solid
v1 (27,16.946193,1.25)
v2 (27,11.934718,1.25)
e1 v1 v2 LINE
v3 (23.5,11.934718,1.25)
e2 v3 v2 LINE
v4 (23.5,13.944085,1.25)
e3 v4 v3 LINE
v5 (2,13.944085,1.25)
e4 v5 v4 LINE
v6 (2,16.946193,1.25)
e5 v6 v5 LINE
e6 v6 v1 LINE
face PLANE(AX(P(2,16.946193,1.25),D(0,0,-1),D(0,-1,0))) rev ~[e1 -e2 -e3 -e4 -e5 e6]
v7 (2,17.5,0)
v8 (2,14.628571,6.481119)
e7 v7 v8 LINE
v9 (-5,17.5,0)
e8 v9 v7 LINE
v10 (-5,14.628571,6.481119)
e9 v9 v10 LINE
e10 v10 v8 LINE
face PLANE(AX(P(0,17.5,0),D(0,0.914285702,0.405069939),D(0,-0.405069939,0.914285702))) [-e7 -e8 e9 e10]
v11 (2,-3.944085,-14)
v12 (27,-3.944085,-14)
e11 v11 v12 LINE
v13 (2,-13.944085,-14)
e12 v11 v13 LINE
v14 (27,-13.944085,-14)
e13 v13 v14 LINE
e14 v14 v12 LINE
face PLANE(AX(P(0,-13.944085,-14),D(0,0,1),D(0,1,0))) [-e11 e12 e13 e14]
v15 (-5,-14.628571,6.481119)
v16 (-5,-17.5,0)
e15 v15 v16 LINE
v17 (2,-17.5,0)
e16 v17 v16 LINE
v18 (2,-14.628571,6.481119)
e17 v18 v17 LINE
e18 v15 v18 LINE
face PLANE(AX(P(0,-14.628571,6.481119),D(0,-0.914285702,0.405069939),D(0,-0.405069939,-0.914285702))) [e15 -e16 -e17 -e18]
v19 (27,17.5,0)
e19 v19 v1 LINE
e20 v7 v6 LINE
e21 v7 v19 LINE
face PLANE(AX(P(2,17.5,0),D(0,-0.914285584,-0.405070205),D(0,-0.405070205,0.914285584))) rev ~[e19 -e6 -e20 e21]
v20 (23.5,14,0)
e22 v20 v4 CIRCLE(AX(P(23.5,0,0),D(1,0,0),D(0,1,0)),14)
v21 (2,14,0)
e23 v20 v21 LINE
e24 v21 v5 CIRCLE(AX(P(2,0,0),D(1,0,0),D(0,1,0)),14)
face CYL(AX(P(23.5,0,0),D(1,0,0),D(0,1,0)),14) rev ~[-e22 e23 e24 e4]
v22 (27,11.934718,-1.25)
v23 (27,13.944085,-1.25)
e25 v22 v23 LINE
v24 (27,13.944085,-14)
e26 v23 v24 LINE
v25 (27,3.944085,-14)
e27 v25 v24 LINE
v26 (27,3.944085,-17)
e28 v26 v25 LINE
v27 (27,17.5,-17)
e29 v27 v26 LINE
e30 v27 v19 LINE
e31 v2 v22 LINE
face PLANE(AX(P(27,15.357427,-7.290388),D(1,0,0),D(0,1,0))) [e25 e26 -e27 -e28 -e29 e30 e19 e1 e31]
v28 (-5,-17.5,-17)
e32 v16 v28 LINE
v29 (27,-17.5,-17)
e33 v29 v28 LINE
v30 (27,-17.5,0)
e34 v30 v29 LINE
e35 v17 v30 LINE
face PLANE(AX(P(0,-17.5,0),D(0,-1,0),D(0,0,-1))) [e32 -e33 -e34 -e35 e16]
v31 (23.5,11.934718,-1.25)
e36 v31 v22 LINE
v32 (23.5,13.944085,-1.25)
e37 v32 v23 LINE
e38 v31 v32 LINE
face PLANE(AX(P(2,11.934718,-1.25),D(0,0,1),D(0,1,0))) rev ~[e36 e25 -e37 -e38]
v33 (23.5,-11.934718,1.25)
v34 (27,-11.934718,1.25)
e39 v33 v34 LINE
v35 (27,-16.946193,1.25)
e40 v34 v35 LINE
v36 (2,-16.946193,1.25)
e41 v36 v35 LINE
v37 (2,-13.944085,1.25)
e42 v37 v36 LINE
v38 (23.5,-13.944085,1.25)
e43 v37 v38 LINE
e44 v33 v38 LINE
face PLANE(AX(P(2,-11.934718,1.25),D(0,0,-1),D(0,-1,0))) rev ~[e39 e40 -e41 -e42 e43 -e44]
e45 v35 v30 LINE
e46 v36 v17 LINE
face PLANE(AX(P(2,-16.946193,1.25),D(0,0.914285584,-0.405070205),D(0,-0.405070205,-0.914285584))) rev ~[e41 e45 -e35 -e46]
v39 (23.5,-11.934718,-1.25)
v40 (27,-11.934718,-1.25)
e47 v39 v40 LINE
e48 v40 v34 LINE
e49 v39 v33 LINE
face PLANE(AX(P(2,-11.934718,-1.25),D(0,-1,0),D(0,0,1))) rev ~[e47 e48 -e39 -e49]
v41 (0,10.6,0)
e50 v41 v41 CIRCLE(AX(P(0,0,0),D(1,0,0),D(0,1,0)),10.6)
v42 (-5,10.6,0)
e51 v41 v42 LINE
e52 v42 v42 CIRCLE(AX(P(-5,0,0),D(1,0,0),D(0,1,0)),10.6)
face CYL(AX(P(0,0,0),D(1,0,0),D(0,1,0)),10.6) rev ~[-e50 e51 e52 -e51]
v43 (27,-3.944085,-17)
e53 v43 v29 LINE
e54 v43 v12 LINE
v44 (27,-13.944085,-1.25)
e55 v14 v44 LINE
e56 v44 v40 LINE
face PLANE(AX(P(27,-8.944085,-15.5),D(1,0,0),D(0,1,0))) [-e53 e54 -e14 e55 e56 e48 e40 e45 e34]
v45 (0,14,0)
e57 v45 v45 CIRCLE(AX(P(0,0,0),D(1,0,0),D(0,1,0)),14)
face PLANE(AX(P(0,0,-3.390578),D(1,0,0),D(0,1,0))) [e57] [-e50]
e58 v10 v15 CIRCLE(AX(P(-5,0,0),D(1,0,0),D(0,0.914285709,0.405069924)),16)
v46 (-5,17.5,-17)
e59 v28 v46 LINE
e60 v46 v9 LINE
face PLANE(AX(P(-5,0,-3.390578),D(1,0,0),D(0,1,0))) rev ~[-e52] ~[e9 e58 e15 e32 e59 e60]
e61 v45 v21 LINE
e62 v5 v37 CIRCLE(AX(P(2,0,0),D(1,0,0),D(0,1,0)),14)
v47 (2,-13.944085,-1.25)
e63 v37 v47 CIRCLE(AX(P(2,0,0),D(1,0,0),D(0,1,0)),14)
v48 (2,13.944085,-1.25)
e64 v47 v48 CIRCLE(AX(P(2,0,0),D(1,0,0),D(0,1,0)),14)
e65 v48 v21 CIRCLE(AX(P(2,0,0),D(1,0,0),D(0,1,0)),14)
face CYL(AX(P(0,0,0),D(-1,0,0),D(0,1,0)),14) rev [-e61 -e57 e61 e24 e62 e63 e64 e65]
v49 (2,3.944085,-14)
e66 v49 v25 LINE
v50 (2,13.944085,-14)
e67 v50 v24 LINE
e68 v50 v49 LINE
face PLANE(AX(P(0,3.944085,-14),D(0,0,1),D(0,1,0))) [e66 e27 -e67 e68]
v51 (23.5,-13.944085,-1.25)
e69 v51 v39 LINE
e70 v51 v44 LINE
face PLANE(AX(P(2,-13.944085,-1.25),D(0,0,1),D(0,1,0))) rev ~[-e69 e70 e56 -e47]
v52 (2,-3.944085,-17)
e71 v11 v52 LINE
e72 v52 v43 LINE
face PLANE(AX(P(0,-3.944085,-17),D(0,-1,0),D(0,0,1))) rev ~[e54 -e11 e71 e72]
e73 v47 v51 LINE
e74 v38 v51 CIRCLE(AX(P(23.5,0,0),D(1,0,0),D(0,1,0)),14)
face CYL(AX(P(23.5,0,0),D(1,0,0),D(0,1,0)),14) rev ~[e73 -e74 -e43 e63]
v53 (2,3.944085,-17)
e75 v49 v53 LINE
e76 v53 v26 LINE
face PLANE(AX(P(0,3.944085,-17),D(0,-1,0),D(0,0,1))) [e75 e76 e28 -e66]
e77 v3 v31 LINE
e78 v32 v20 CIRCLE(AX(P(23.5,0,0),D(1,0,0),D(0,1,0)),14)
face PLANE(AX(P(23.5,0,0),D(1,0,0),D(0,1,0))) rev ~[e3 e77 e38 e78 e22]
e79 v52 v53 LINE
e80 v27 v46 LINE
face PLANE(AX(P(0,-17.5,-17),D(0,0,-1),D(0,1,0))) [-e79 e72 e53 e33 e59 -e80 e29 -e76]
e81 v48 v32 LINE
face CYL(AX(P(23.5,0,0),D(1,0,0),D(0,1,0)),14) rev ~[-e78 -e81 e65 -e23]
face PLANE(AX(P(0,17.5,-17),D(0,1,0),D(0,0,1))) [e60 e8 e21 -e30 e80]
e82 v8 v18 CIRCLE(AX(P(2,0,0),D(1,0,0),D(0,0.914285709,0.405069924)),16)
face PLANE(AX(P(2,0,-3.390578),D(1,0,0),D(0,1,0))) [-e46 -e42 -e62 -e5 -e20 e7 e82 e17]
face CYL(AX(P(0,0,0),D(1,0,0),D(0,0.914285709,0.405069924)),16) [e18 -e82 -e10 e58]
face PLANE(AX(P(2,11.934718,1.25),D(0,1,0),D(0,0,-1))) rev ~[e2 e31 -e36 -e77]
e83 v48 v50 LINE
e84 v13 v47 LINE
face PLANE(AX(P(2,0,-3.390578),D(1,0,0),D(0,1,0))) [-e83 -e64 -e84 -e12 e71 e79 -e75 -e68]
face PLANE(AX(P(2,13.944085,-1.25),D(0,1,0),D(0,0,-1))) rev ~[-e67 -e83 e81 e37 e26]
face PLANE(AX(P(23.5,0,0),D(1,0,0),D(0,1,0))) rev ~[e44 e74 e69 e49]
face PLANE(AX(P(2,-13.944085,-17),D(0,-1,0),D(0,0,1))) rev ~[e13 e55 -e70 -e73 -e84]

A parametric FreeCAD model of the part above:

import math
import FreeCAD as App
import Part
import Sketcher
Q = App.Units.Quantity

doc = App.newDocument("Part")
body = doc.addObject("PartDesign::Body", "Body")

# Sketch on YZ plane
sketch1 = body.newObject("Sketcher::SketchObject", "Sketch")
sketch1.AttachmentSupport = (doc.getObject("YZ_Plane"), [""])
sketch1.MapMode = "FlatFace"
sketch1.addGeometry([
    Part.LineSegment(App.Vector(-17.5, 0, 0), App.Vector(-17.5, -17, 0)),  # 0
    Part.LineSegment(App.Vector(-17.5, -17, 0), App.Vector(17.5, -17, 0)),  # 1
    Part.LineSegment(App.Vector(17.5, -17, 0), App.Vector(17.5, 0, 0)),  # 2
    Part.LineSegment(App.Vector(17.5, 0, 0), App.Vector(14.628571, 6.481119, 0)),  # 3
    Part.ArcOfCircle(Part.Circle(App.Vector(0, 0, 0), App.Vector(0, 0, 1), 16), math.radians(23.895509), math.radians(156.104491)),  # 4
    Part.LineSegment(App.Vector(-14.628571, 6.481119, 0), App.Vector(-17.5, 0, 0)),  # 5
    Part.Circle(App.Vector(0, 0, 0), App.Vector(0, 0, 1), 14),  # 6
], False)
sketch1.addConstraint([
    Sketcher.Constraint("Coincident", 0, 2, 1, 1),
    Sketcher.Constraint("Coincident", 1, 2, 2, 1),
    Sketcher.Constraint("Coincident", 2, 2, 3, 1),
    Sketcher.Constraint("Tangent", 3, 2, 4, 1),
    Sketcher.Constraint("Tangent", 4, 2, 5, 1),
    Sketcher.Constraint("Coincident", 5, 2, 0, 1),
    Sketcher.Constraint("Vertical", 0),
    Sketcher.Constraint("Horizontal", 1),
    Sketcher.Constraint("Vertical", 2),
    Sketcher.Constraint("Coincident", 4, 3, -1, 1),
    Sketcher.Constraint("Coincident", 6, 3, -1, 1),
    Sketcher.Constraint("Symmetric", 2, 2, 5, 2, -1, 1),
    Sketcher.Constraint("PointOnObject", 2, 2, -1),
    Sketcher.Constraint("Diameter", 6, Q("28 mm")),
    Sketcher.Constraint("Radius", 4, Q("16 mm")),
    Sketcher.Constraint("DistanceX", 1, 1, 1, 2, Q("35 mm")),
    Sketcher.Constraint("DistanceY", 0, 2, 0, 1, Q("17 mm")),
])
pad1 = body.newObject("PartDesign::Pad", "Pad")
pad1.Profile = sketch1
pad1.Length = 2

# Sketch on YZ plane
sketch2 = body.newObject("Sketcher::SketchObject", "Sketch001")
sketch2.AttachmentSupport = (doc.getObject("YZ_Plane"), [""])
sketch2.MapMode = "FlatFace"
sketch2.AttachmentOffset = App.Placement(App.Vector(0, 0, 2), App.Rotation())
sketch2.addGeometry([
    Part.LineSegment(App.Vector(-11.934718, -1.25, 0), App.Vector(-11.934718, 1.25, 0)),  # 0
    Part.LineSegment(App.Vector(-11.934718, 1.25, 0), App.Vector(-16.946193, 1.25, 0)),  # 1
    Part.LineSegment(App.Vector(-16.946193, 1.25, 0), App.Vector(-17.5, 0, 0)),  # 2
    Part.LineSegment(App.Vector(-17.5, 0, 0), App.Vector(-17.5, -17, 0)),  # 3
    Part.LineSegment(App.Vector(-17.5, -17, 0), App.Vector(-13.944085, -17, 0)),  # 4
    Part.LineSegment(App.Vector(-13.944085, -17, 0), App.Vector(-13.944085, -1.25, 0)),  # 5
    Part.LineSegment(App.Vector(-13.944085, -1.25, 0), App.Vector(-11.934718, -1.25, 0)),  # 6
    Part.LineSegment(App.Vector(11.934718, 1.25, 0), App.Vector(11.934718, -1.25, 0)),  # 7
    Part.LineSegment(App.Vector(11.934718, -1.25, 0), App.Vector(13.944085, -1.25, 0)),  # 8
    Part.LineSegment(App.Vector(13.944085, -1.25, 0), App.Vector(13.944085, -17, 0)),  # 9
    Part.LineSegment(App.Vector(13.944085, -17, 0), App.Vector(17.5, -17, 0)),  # 10
    Part.LineSegment(App.Vector(17.5, -17, 0), App.Vector(17.5, 0, 0)),  # 11
    Part.LineSegment(App.Vector(17.5, 0, 0), App.Vector(16.946193, 1.25, 0)),  # 12
    Part.LineSegment(App.Vector(16.946193, 1.25, 0), App.Vector(11.934718, 1.25, 0)),  # 13
], False)
sketch2.addConstraint([
    Sketcher.Constraint("Coincident", 0, 2, 1, 1),
    Sketcher.Constraint("Coincident", 1, 2, 2, 1),
    Sketcher.Constraint("Coincident", 2, 2, 3, 1),
    Sketcher.Constraint("Coincident", 3, 2, 4, 1),
    Sketcher.Constraint("Coincident", 4, 2, 5, 1),
    Sketcher.Constraint("Coincident", 5, 2, 6, 1),
    Sketcher.Constraint("Coincident", 6, 2, 0, 1),
    Sketcher.Constraint("Coincident", 7, 2, 8, 1),
    Sketcher.Constraint("Coincident", 8, 2, 9, 1),
    Sketcher.Constraint("Coincident", 9, 2, 10, 1),
    Sketcher.Constraint("Coincident", 10, 2, 11, 1),
    Sketcher.Constraint("Coincident", 11, 2, 12, 1),
    Sketcher.Constraint("Coincident", 12, 2, 13, 1),
    Sketcher.Constraint("Coincident", 13, 2, 7, 1),
    Sketcher.Constraint("Vertical", 0),
    Sketcher.Constraint("Horizontal", 1),
    Sketcher.Constraint("Vertical", 3),
    Sketcher.Constraint("Horizontal", 4),
    Sketcher.Constraint("Vertical", 5),
    Sketcher.Constraint("Horizontal", 6),
    Sketcher.Constraint("Vertical", 7),
    Sketcher.Constraint("Horizontal", 8),
    Sketcher.Constraint("Vertical", 9),
    Sketcher.Constraint("Horizontal", 10),
    Sketcher.Constraint("Vertical", 11),
    Sketcher.Constraint("Horizontal", 13),
    Sketcher.Constraint("Symmetric", 0, 2, 7, 2, -1, 1),
    Sketcher.Constraint("Symmetric", 2, 2, 11, 2, -1, 1),
    Sketcher.Constraint("Symmetric", 5, 2, 8, 2, -2),
    Sketcher.Constraint("Symmetric", 1, 2, 12, 2, -2),
    Sketcher.Constraint("PointOnObject", 2, 2, -1),
    Sketcher.Constraint("Horizontal", 4, 2, 9, 2),
    Sketcher.Constraint("DistanceY", 3, 2, 3, 1, Q("17 mm")),
    Sketcher.Constraint("DistanceY", 0, 1, 0, 2, Q("2.5 mm")),
    Sketcher.Constraint("DistanceX", 2, 2, -1, 1, Q("17.5 mm")),
    Sketcher.Constraint("DistanceX", 1, 2, 1, 1, Q("5.011475 mm")),
    Sketcher.Constraint("DistanceX", 4, 1, 4, 2, Q("3.555915 mm")),
    Sketcher.Constraint("DistanceX", 6, 1, 6, 2, Q("2.009367 mm")),
])
pad2 = body.newObject("PartDesign::Pad", "Pad001")
pad2.Profile = sketch2
pad2.Length = 25

# Sketch on YZ plane
sketch3 = body.newObject("Sketcher::SketchObject", "Sketch002")
sketch3.AttachmentSupport = (doc.getObject("YZ_Plane"), [""])
sketch3.MapMode = "FlatFace"
sketch3.addGeometry([
    Part.LineSegment(App.Vector(17.5, -17, 0), App.Vector(17.5, 0, 0)),  # 0
    Part.LineSegment(App.Vector(17.5, 0, 0), App.Vector(14.628571, 6.481119, 0)),  # 1
    Part.ArcOfCircle(Part.Circle(App.Vector(0, 0, 0), App.Vector(0, 0, 1), 16), math.radians(23.895509), math.radians(156.104491)),  # 2
    Part.LineSegment(App.Vector(-14.628571, 6.481119, 0), App.Vector(-17.5, 0, 0)),  # 3
    Part.LineSegment(App.Vector(-17.5, 0, 0), App.Vector(-17.5, -17, 0)),  # 4
    Part.LineSegment(App.Vector(-17.5, -17, 0), App.Vector(17.5, -17, 0)),  # 5
    Part.Circle(App.Vector(0, 0, 0), App.Vector(0, 0, 1), 10.6),  # 6
], False)
sketch3.addConstraint([
    Sketcher.Constraint("Coincident", 0, 2, 1, 1),
    Sketcher.Constraint("Tangent", 1, 2, 2, 1),
    Sketcher.Constraint("Tangent", 2, 2, 3, 1),
    Sketcher.Constraint("Coincident", 3, 2, 4, 1),
    Sketcher.Constraint("Coincident", 4, 2, 5, 1),
    Sketcher.Constraint("Coincident", 5, 2, 0, 1),
    Sketcher.Constraint("Vertical", 0),
    Sketcher.Constraint("Vertical", 4),
    Sketcher.Constraint("Horizontal", 5),
    Sketcher.Constraint("Coincident", 2, 3, -1, 1),
    Sketcher.Constraint("Coincident", 6, 3, -1, 1),
    Sketcher.Constraint("Symmetric", 0, 2, 3, 2, -1, 1),
    Sketcher.Constraint("PointOnObject", 0, 2, -1),
    Sketcher.Constraint("Radius", 2, Q("16 mm")),
    Sketcher.Constraint("Diameter", 6, Q("21.2 mm")),
    Sketcher.Constraint("DistanceX", 5, 1, 5, 2, Q("35 mm")),
    Sketcher.Constraint("DistanceY", 0, 1, 0, 2, Q("17 mm")),
])
pad3 = body.newObject("PartDesign::Pad", "Pad002")
pad3.Profile = sketch3
pad3.Length = 5
pad3.Reversed = True

# Sketch on YZ plane
sketch4 = body.newObject("Sketcher::SketchObject", "Sketch003")
sketch4.AttachmentSupport = (doc.getObject("YZ_Plane"), [""])
sketch4.MapMode = "FlatFace"
sketch4.AttachmentOffset = App.Placement(App.Vector(0, 0, 23.5), App.Rotation())
sketch4.addGeometry(Part.Circle(App.Vector(0, 0, 0), App.Vector(0, 0, 1), 14), False)
sketch4.addConstraint([
    Sketcher.Constraint("Coincident", 0, 3, -1, 1),
    Sketcher.Constraint("Diameter", 0, Q("28 mm")),
])
pocket1 = body.newObject("PartDesign::Pocket", "Pocket")
pocket1.Profile = sketch4
pocket1.Length = 23.5

# Sketch on YZ plane
sketch5 = body.newObject("Sketcher::SketchObject", "Sketch004")
sketch5.AttachmentSupport = (doc.getObject("YZ_Plane"), [""])
sketch5.MapMode = "FlatFace"
sketch5.addGeometry([
    Part.LineSegment(App.Vector(-13.944085, -14, 0), App.Vector(-13.944085, -17, 0)),  # 0
    Part.LineSegment(App.Vector(-13.944085, -17, 0), App.Vector(-3.944085, -17, 0)),  # 1
    Part.LineSegment(App.Vector(-3.944085, -17, 0), App.Vector(-3.944085, -14, 0)),  # 2
    Part.LineSegment(App.Vector(-3.944085, -14, 0), App.Vector(-13.944085, -14, 0)),  # 3
    Part.LineSegment(App.Vector(3.944085, -14, 0), App.Vector(3.944085, -17, 0)),  # 4
    Part.LineSegment(App.Vector(3.944085, -17, 0), App.Vector(13.944085, -17, 0)),  # 5
    Part.LineSegment(App.Vector(13.944085, -17, 0), App.Vector(13.944085, -14, 0)),  # 6
    Part.LineSegment(App.Vector(13.944085, -14, 0), App.Vector(3.944085, -14, 0)),  # 7
], False)
sketch5.addConstraint([
    Sketcher.Constraint("Coincident", 0, 2, 1, 1),
    Sketcher.Constraint("Coincident", 1, 2, 2, 1),
    Sketcher.Constraint("Coincident", 2, 2, 3, 1),
    Sketcher.Constraint("Coincident", 3, 2, 0, 1),
    Sketcher.Constraint("Coincident", 4, 2, 5, 1),
    Sketcher.Constraint("Coincident", 5, 2, 6, 1),
    Sketcher.Constraint("Coincident", 6, 2, 7, 1),
    Sketcher.Constraint("Coincident", 7, 2, 4, 1),
    Sketcher.Constraint("Vertical", 0),
    Sketcher.Constraint("Horizontal", 1),
    Sketcher.Constraint("Vertical", 2),
    Sketcher.Constraint("Horizontal", 3),
    Sketcher.Constraint("Vertical", 4),
    Sketcher.Constraint("Horizontal", 5),
    Sketcher.Constraint("Vertical", 6),
    Sketcher.Constraint("Horizontal", 7),
    Sketcher.Constraint("Symmetric", 1, 2, 4, 2, -2),
    Sketcher.Constraint("Symmetric", 3, 2, 6, 2, -2),
    Sketcher.Constraint("DistanceX", 1, 1, 1, 2, Q("10 mm")),
    Sketcher.Constraint("DistanceY", 0, 2, 0, 1, Q("3 mm")),
    Sketcher.Constraint("DistanceY", 0, 2, -1, 1, Q("17 mm")),
    Sketcher.Constraint("DistanceX", 1, 2, 4, 2, Q("7.88817 mm")),
])
pad4 = body.newObject("PartDesign::Pad", "Pad003")
pad4.Profile = sketch5
pad4.Length = 27

# Sketch on YZ plane
sketch6 = body.newObject("Sketcher::SketchObject", "Sketch005")
sketch6.AttachmentSupport = (doc.getObject("YZ_Plane"), [""])
sketch6.MapMode = "FlatFace"
sketch6.addGeometry([
    Part.LineSegment(App.Vector(-13.944085, -14, 0), App.Vector(-13.944085, -17, 0)),  # 0
    Part.LineSegment(App.Vector(-13.944085, -17, 0), App.Vector(-3.944085, -17, 0)),  # 1
    Part.LineSegment(App.Vector(-3.944085, -17, 0), App.Vector(-3.944085, -14, 0)),  # 2
    Part.LineSegment(App.Vector(-3.944085, -14, 0), App.Vector(-13.944085, -14, 0)),  # 3
    Part.LineSegment(App.Vector(3.944085, -14, 0), App.Vector(3.944085, -17, 0)),  # 4
    Part.LineSegment(App.Vector(3.944085, -17, 0), App.Vector(13.944085, -17, 0)),  # 5
    Part.LineSegment(App.Vector(13.944085, -17, 0), App.Vector(13.944085, -14, 0)),  # 6
    Part.LineSegment(App.Vector(13.944085, -14, 0), App.Vector(3.944085, -14, 0)),  # 7
], False)
sketch6.addConstraint([
    Sketcher.Constraint("Coincident", 0, 2, 1, 1),
    Sketcher.Constraint("Coincident", 1, 2, 2, 1),
    Sketcher.Constraint("Coincident", 2, 2, 3, 1),
    Sketcher.Constraint("Coincident", 3, 2, 0, 1),
    Sketcher.Constraint("Coincident", 4, 2, 5, 1),
    Sketcher.Constraint("Coincident", 5, 2, 6, 1),
    Sketcher.Constraint("Coincident", 6, 2, 7, 1),
    Sketcher.Constraint("Coincident", 7, 2, 4, 1),
    Sketcher.Constraint("Vertical", 0),
    Sketcher.Constraint("Horizontal", 1),
    Sketcher.Constraint("Vertical", 2),
    Sketcher.Constraint("Horizontal", 3),
    Sketcher.Constraint("Vertical", 4),
    Sketcher.Constraint("Horizontal", 5),
    Sketcher.Constraint("Vertical", 6),
    Sketcher.Constraint("Horizontal", 7),
    Sketcher.Constraint("Symmetric", 1, 2, 4, 2, -2),
    Sketcher.Constraint("Symmetric", 3, 2, 6, 2, -2),
    Sketcher.Constraint("DistanceX", 1, 1, 1, 2, Q("10 mm")),
    Sketcher.Constraint("DistanceY", 0, 2, 0, 1, Q("3 mm")),
    Sketcher.Constraint("DistanceY", 0, 2, -1, 1, Q("17 mm")),
    Sketcher.Constraint("DistanceX", 1, 2, 4, 2, Q("7.88817 mm")),
])
pad5 = body.newObject("PartDesign::Pad", "Pad004")
pad5.Profile = sketch6
pad5.Length = 5
pad5.Reversed = True

doc.recompute()
